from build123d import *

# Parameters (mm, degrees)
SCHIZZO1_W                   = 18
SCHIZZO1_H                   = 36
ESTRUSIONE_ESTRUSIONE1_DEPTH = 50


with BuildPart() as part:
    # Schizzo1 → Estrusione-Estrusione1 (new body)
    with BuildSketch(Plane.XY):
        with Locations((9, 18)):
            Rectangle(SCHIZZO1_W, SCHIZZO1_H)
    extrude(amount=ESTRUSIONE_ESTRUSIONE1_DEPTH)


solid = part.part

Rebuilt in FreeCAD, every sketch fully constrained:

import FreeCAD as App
import Part
import Sketcher

V = App.Vector

doc = App.newDocument("Part")
body = doc.addObject("PartDesign::Body", "Body")

# Sketch on XY plane
sketch1 = doc.addObject("Sketcher::SketchObject", "Sketch")
body.addObject(sketch1)
sketch1.AttachmentSupport = (doc.XY_Plane, [""])
sketch1.MapMode = "FlatFace"
sketch1.addGeometry(Part.LineSegment(V(0, 36, 0), V(0, 0, 0)), False)
sketch1.addGeometry(Part.LineSegment(V(0, 0, 0), V(18, 0, 0)), False)
sketch1.addGeometry(Part.LineSegment(V(18, 0, 0), V(18, 36, 0)), False)
sketch1.addGeometry(Part.LineSegment(V(18, 36, 0), V(0, 36, 0)), False)
sketch1.addConstraint(Sketcher.Constraint("Coincident", 0, 2, 1, 1))
sketch1.addConstraint(Sketcher.Constraint("Coincident", 1, 2, 2, 1))
sketch1.addConstraint(Sketcher.Constraint("Coincident", 2, 2, 3, 1))
sketch1.addConstraint(Sketcher.Constraint("Coincident", 3, 2, 0, 1))
sketch1.addConstraint(Sketcher.Constraint("Vertical", 0))
sketch1.addConstraint(Sketcher.Constraint("Horizontal", 1))
sketch1.addConstraint(Sketcher.Constraint("Vertical", 2))
sketch1.addConstraint(Sketcher.Constraint("Horizontal", 3))
sketch1.addConstraint(Sketcher.Constraint("Coincident", 0, 2, -1, 1))
sketch1.addConstraint(Sketcher.Constraint("DistanceX", 1, 1, 1, 2, 18.0))
sketch1.addConstraint(Sketcher.Constraint("DistanceY", 0, 2, 0, 1, 36.0))
pad1 = doc.addObject("PartDesign::Pad", "Pad")
body.addObject(pad1)
pad1.Profile = sketch1
pad1.Length = 50

doc.recompute()
